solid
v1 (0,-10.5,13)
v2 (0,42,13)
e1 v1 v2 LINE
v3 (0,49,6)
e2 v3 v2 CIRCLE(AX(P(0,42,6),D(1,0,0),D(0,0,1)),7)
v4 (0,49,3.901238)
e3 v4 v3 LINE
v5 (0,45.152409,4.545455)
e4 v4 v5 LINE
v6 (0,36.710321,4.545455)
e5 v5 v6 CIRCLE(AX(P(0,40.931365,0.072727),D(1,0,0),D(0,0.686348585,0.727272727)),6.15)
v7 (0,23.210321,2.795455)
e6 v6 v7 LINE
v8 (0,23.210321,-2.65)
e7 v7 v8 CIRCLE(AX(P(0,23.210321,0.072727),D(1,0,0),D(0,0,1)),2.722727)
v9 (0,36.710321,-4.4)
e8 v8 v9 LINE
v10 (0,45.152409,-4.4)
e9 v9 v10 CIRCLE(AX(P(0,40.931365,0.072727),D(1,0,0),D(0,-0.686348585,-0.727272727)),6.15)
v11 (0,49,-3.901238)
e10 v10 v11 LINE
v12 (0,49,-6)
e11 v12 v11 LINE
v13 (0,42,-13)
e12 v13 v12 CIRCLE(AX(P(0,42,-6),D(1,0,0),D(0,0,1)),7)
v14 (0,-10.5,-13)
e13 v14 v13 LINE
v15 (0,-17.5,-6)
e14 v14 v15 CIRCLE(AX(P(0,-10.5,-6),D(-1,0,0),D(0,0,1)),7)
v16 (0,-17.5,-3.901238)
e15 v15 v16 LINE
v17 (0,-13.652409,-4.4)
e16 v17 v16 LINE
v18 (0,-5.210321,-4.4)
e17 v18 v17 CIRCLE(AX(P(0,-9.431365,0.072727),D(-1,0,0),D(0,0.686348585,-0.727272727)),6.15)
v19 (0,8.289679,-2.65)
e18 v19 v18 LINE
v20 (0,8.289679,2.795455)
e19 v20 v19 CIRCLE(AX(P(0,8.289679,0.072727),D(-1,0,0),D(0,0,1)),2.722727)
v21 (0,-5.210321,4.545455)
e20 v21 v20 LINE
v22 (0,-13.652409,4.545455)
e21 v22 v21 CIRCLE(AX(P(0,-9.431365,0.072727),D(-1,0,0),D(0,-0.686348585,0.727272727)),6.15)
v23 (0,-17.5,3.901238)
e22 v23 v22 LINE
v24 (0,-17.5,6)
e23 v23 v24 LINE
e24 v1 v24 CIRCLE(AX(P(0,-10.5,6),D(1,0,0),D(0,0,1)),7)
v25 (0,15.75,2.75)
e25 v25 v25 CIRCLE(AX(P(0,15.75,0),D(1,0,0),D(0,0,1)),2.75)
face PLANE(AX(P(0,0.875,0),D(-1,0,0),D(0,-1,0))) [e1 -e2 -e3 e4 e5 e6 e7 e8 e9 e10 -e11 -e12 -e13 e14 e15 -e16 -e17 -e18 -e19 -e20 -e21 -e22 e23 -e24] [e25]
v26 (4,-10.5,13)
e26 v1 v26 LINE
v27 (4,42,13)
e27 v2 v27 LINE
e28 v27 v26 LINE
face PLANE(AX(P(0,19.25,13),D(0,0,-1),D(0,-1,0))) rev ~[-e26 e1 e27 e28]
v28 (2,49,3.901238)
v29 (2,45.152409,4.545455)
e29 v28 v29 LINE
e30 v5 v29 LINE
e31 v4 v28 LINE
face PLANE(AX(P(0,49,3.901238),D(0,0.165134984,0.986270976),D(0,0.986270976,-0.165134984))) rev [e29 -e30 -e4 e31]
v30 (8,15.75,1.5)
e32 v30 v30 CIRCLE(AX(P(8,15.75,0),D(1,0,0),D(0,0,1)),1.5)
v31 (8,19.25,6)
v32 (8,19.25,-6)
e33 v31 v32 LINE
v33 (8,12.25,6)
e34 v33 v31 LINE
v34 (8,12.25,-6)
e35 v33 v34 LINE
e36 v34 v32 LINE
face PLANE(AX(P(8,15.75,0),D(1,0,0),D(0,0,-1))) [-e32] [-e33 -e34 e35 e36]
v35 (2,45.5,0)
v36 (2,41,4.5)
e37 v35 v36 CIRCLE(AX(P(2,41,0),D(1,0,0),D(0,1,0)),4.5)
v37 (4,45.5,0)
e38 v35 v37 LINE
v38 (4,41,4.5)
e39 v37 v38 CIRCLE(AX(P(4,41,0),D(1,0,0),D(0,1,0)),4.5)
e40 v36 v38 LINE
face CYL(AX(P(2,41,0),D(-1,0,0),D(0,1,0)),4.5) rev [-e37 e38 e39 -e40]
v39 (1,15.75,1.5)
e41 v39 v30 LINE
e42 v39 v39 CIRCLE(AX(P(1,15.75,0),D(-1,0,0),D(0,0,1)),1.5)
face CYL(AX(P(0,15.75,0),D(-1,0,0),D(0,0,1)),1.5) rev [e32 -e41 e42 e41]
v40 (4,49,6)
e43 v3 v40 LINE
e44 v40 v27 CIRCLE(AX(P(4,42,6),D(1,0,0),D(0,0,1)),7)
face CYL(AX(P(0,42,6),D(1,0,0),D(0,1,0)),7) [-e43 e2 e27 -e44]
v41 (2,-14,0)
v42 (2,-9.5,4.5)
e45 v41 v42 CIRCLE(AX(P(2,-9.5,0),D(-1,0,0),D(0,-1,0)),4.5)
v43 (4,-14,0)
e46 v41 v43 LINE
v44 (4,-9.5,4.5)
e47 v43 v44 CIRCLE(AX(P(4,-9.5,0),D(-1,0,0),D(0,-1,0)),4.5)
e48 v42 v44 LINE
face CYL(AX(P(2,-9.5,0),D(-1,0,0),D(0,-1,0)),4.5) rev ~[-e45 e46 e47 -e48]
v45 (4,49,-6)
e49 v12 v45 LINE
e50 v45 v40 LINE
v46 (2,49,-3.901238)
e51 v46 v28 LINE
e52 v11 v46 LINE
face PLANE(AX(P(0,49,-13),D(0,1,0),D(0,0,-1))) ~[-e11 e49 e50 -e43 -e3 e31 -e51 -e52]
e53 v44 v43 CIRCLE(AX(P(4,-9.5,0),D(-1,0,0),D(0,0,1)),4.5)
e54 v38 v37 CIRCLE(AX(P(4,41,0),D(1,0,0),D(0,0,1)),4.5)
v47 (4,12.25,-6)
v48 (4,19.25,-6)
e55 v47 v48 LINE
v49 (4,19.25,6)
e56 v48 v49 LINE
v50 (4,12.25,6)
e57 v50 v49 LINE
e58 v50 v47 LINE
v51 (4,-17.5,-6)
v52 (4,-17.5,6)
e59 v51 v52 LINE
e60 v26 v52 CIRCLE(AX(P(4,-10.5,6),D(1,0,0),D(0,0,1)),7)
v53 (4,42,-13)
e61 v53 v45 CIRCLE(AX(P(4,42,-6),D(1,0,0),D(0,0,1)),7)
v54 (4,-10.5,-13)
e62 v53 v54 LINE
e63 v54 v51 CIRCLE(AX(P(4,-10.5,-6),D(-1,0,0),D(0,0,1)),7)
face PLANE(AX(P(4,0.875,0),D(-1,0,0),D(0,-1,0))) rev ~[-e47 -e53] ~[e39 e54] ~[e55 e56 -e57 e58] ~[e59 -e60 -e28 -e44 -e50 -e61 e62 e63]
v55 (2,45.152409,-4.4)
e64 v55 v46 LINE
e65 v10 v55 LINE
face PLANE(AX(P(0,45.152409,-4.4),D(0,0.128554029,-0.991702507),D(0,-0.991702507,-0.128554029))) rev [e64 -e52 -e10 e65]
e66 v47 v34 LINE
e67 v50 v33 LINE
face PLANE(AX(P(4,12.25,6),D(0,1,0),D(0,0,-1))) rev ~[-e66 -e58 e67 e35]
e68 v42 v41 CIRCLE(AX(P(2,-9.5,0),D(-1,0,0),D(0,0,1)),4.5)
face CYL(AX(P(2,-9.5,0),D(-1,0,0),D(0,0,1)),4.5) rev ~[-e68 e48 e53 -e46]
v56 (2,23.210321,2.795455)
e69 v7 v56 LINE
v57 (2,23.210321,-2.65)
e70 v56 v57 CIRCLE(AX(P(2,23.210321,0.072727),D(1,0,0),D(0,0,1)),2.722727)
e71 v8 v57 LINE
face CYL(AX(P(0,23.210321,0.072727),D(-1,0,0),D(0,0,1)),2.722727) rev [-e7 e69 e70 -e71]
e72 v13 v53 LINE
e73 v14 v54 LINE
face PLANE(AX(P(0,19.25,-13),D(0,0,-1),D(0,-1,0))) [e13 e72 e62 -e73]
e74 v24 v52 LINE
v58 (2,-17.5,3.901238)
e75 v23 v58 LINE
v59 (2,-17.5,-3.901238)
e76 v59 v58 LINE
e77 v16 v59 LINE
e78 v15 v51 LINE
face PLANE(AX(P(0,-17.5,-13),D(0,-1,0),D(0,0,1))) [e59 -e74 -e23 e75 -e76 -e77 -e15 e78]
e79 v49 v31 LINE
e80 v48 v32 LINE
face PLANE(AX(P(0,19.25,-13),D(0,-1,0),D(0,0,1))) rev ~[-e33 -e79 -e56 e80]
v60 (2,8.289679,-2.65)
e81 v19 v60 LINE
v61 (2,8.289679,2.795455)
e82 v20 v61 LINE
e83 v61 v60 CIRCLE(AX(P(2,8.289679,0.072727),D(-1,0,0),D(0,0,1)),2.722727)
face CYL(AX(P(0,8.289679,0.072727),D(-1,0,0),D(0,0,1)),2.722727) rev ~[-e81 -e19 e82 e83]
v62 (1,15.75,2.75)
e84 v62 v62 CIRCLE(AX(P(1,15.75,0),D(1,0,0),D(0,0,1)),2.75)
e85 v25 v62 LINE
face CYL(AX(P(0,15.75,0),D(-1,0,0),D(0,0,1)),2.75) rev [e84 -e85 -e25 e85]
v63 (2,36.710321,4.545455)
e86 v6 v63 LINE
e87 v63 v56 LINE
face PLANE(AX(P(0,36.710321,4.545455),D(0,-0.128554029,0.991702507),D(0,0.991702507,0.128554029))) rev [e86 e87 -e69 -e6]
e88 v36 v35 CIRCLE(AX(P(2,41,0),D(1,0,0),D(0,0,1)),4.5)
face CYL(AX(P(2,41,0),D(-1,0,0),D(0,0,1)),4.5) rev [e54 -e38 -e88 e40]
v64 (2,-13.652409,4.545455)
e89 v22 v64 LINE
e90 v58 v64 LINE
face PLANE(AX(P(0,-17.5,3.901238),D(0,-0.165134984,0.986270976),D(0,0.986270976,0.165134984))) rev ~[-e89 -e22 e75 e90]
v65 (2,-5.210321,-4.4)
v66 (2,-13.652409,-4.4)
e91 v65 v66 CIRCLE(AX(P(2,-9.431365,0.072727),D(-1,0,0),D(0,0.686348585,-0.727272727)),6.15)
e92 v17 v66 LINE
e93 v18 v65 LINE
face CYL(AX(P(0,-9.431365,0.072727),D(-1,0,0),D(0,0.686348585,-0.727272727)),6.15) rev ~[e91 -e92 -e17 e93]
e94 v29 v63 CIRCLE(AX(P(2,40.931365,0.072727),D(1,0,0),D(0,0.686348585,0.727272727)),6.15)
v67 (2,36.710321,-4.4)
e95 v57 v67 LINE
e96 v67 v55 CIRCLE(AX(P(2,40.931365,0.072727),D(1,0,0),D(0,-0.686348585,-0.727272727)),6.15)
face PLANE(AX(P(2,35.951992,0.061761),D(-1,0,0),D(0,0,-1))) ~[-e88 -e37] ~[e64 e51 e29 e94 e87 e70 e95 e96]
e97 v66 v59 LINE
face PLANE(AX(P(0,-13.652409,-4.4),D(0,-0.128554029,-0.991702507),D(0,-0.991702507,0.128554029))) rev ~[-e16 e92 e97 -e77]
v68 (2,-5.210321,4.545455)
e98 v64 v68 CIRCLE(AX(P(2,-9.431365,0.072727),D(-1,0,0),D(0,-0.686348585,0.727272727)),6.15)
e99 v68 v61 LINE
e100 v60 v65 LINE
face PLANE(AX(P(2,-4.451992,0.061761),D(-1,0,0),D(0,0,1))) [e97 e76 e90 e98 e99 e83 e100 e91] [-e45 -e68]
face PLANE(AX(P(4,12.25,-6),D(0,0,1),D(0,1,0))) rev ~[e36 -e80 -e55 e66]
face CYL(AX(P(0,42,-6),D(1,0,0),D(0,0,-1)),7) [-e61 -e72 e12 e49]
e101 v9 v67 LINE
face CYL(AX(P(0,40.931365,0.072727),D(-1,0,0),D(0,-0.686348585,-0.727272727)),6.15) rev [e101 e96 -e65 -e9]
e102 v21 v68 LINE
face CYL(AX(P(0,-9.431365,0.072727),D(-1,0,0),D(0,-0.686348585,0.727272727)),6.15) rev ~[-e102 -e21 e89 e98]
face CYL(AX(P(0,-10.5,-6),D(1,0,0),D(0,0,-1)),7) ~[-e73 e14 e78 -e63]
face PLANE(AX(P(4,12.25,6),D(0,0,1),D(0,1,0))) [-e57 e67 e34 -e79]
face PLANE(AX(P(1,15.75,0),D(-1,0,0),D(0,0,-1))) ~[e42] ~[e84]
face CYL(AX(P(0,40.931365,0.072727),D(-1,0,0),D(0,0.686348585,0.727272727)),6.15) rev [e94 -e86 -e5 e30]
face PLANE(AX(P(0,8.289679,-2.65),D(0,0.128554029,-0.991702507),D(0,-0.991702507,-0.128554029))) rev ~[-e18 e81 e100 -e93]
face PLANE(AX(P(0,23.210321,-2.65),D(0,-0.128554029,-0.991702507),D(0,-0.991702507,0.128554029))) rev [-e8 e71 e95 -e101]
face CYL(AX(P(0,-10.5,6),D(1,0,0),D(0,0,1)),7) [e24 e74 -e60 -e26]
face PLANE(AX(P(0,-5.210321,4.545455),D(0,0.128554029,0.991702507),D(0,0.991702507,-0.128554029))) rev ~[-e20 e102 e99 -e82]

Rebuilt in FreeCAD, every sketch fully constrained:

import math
import FreeCAD as App
import Part
import Sketcher

V = App.Vector
Q = App.Units.Quantity


def edges_at(feature, points):
    """Names of the edges that pass closest to the given points."""
    edges = feature.Shape.Edges
    near = lambda p: min(range(len(edges)), key=lambda i: edges[i].distToShape(Part.Vertex(*p))[0])
    return sorted({f"Edge{near(p) + 1}" for p in points})

doc = App.newDocument("Part")
body = doc.addObject("PartDesign::Body", "Body")

# Sketch on YZ plane
sketch1 = body.newObject("Sketcher::SketchObject", "Sketch")
sketch1.AttachmentSupport = (doc.getObject("YZ_Plane"), [""])
sketch1.MapMode = "FlatFace"
sketch1.addGeometry([
    Part.LineSegment(V(19, 13, 0), V(19, -13, 0)),
    Part.LineSegment(V(19, -13, 0), V(-18, -13, 0)),
    Part.LineSegment(V(-18, -13, 0), V(-18, 13, 0)),
    Part.LineSegment(V(-18, 13, 0), V(19, 13, 0)),
], False)
sketch1.addConstraint([
    Sketcher.Constraint("Coincident", 0, 2, 1, 1),
    Sketcher.Constraint("Coincident", 1, 2, 2, 1),
    Sketcher.Constraint("Coincident", 2, 2, 3, 1),
    Sketcher.Constraint("Coincident", 3, 2, 0, 1),
    Sketcher.Constraint("Vertical", 0),
    Sketcher.Constraint("Horizontal", 1),
    Sketcher.Constraint("Vertical", 2),
    Sketcher.Constraint("Horizontal", 3),
    Sketcher.Constraint("DistanceY", 0, 2, 0, 1, Q("26 mm")),
    Sketcher.Constraint("DistanceY", 0, 2, -1, 1, Q("13 mm")),
    Sketcher.Constraint("DistanceX", 1, 2, 1, 1, Q("36.75 mm")),
    Sketcher.Constraint("DistanceX", 1, 2, -1, 1, Q("17.5 mm")),
])
pad1 = body.newObject("PartDesign::Pad", "Pad")
pad1.Profile = sketch1
pad1.Length = 4

# Sketch on YZ plane
sketch2 = body.newObject("Sketcher::SketchObject", "Sketch001")
sketch2.AttachmentSupport = (doc.getObject("YZ_Plane"), [""])
sketch2.MapMode = "FlatFace"
sketch2.addGeometry([
    Part.LineSegment(V(-17.5, 3.9, 0), V(-13.7, 4.5, 0)),  # 0
    Part.ArcOfCircle(Part.Circle(V(-9.4, 0.1, 0), V(0, 0, 1), 6.1), math.radians(47), math.radians(133)),  # 1
    Part.LineSegment(V(-5.2, 4.5, 0), V(8.3, 2.8, 0)),  # 2
    Part.ArcOfCircle(Part.Circle(V(8.3, 0.1, 0), V(0, 0, 1), 2.7), math.radians(-90), math.radians(90)),  # 3
    Part.LineSegment(V(8.3, -2.6, 0), V(-5.2, -4.4, 0)),  # 4
    Part.ArcOfCircle(Part.Circle(V(-9.4, 0.1, 0), V(0, 0, 1), 6.2), math.radians(-133), math.radians(-47)),  # 5
    Part.LineSegment(V(-13.7, -4.4, 0), V(-17.5, -3.9, 0)),  # 6
    Part.LineSegment(V(-17.5, -3.9, 0), V(-17.5, 3.9, 0)),  # 7
], False)
sketch2.addConstraint([
    Sketcher.Constraint("Coincident", 0, 2, 1, 2),
    Sketcher.Constraint("Coincident", 1, 1, 2, 1),
    Sketcher.Constraint("Coincident", 2, 2, 3, 2),
    Sketcher.Constraint("Coincident", 3, 1, 4, 1),
    Sketcher.Constraint("Coincident", 4, 2, 5, 2),
    Sketcher.Constraint("Coincident", 5, 1, 6, 1),
    Sketcher.Constraint("Coincident", 6, 2, 7, 1),
    Sketcher.Constraint("Coincident", 7, 2, 0, 1),
    Sketcher.Constraint("Vertical", 7),
    Sketcher.Constraint("Coincident", 5, 3, 1, 3),
    Sketcher.Constraint("Equal", 1, 5),
    Sketcher.Constraint("Parallel", 2, 6),
    Sketcher.Constraint("Horizontal", 1, 3, 3, 3),
    Sketcher.Constraint("Horizontal", 0, 2, 1, 1),
    Sketcher.Constraint("Horizontal", 4, 2, 5, 1),
    Sketcher.Constraint("Vertical", 3, 3, 2, 2),
    Sketcher.Constraint("Vertical", 2, 2, 3, 1),
    Sketcher.Constraint("Vertical", 1, 1, 4, 2),
    Sketcher.Constraint("Radius", 1, Q("6.15 mm")),
    Sketcher.Constraint("DistanceY", 4, 2, -1, 1, Q("4.4 mm")),
    Sketcher.Constraint("DistanceX", 6, 2, -1, 1, Q("17.5 mm")),
    Sketcher.Constraint("DistanceX", 1, 1, 3, 3, Q("13.5 mm")),
    Sketcher.Constraint("DistanceY", 3, 1, -1, 1, Q("2.65 mm")),
    Sketcher.Constraint("Radius", 3, Q("2.722727 mm")),
    Sketcher.Constraint("Distance", 0, Q("3.90115 mm")),
    Sketcher.Constraint("DistanceY", 7, 1, 7, 2, Q("7.802476 mm")),
])
pocket1 = body.newObject("PartDesign::Pocket", "Pocket")
pocket1.Profile = sketch2
pocket1.Length = 2
pocket1.Reversed = True
doc.recompute()

fillet = body.newObject("PartDesign::Fillet", "Fillet")
fillet.Base = (pocket1, edges_at(pocket1, [(2, -17.5, 13), (2, -17.5, -13)]))
fillet.Radius = 7

# Sketch on YZ plane
sketch3 = body.newObject("Sketcher::SketchObject", "Sketch002")
sketch3.AttachmentSupport = (doc.getObject("YZ_Plane"), [""])
sketch3.MapMode = "FlatFace"
sketch3.AttachmentOffset = App.Placement(V(0, 0, 2), App.Rotation())
sketch3.addGeometry([
    Part.ArcOfCircle(Part.Circle(V(-9.5, 0, 0), V(0, 0, 1), 4.5), math.radians(180), math.radians(450)),
    Part.ArcOfCircle(Part.Circle(V(-9.5, 0, 0), V(0, 0, 1), 4.5), math.radians(90), math.radians(180)),
], False)
sketch3.addConstraint([
    Sketcher.Constraint("Tangent", 0, 1, 1, 2),
    Sketcher.Constraint("Coincident", 1, 1, 0, 2),
    Sketcher.Constraint("PointOnObject", 0, 3, -1),
    Sketcher.Constraint("PointOnObject", 0, 1, -1),
    Sketcher.Constraint("Vertical", 0, 3, 1, 1),
    Sketcher.Constraint("Radius", 0, Q("4.5 mm")),
    Sketcher.Constraint("DistanceX", 0, 1, -1, 1, Q("14 mm")),
])
pocket2 = body.newObject("PartDesign::Pocket", "Pocket001")
pocket2.Profile = sketch3
pocket2.Length = 2
pocket2.Reversed = True

# Sketch on YZ plane
sketch4 = body.newObject("Sketcher::SketchObject", "Sketch003")
sketch4.AttachmentSupport = (doc.getObject("YZ_Plane"), [""])
sketch4.MapMode = "FlatFace"
sketch4.AttachmentOffset = App.Placement(V(0, 0, 4), App.Rotation())
sketch4.addGeometry([
    Part.LineSegment(V(19, 6, 0), V(12, 6, 0)),
    Part.LineSegment(V(12, 6, 0), V(12, -6, 0)),
    Part.LineSegment(V(12, -6, 0), V(19, -6, 0)),
    Part.LineSegment(V(19, -6, 0), V(19, 6, 0)),
], False)
sketch4.addConstraint([
    Sketcher.Constraint("Coincident", 0, 2, 1, 1),
    Sketcher.Constraint("Coincident", 1, 2, 2, 1),
    Sketcher.Constraint("Coincident", 2, 2, 3, 1),
    Sketcher.Constraint("Coincident", 3, 2, 0, 1),
    Sketcher.Constraint("Horizontal", 0),
    Sketcher.Constraint("Vertical", 1),
    Sketcher.Constraint("Horizontal", 2),
    Sketcher.Constraint("Vertical", 3),
    Sketcher.Constraint("DistanceX", 0, 2, 0, 1, Q("7 mm")),
    Sketcher.Constraint("DistanceY", 1, 2, 1, 1, Q("12 mm")),
    Sketcher.Constraint("DistanceY", -1, 1, 0, 2, Q("6 mm")),
    Sketcher.Constraint("DistanceX", -1, 1, 0, 2, Q("12.25 mm")),
])
pad2 = body.newObject("PartDesign::Pad", "Pad001")
pad2.Profile = sketch4
pad2.Length = 4

# Sketch on YZ plane
sketch5 = body.newObject("Sketcher::SketchObject", "Sketch004")
sketch5.AttachmentSupport = (doc.getObject("YZ_Plane"), [""])
sketch5.MapMode = "FlatFace"
sketch5.addGeometry(Part.Circle(V(15.8, 0, 0), V(0, 0, 1), 1.5), False)
sketch5.addConstraint([
    Sketcher.Constraint("PointOnObject", 0, 3, -1),
    Sketcher.Constraint("Diameter", 0, Q("3 mm")),
    Sketcher.Constraint("DistanceX", -1, 1, 0, 3, Q("15.75 mm")),
])
pocket3 = body.newObject("PartDesign::Pocket", "Pocket002")
pocket3.Profile = sketch5
pocket3.Length = 8
pocket3.Reversed = True

# Sketch on YZ plane
sketch6 = body.newObject("Sketcher::SketchObject", "Sketch005")
sketch6.AttachmentSupport = (doc.getObject("YZ_Plane"), [""])
sketch6.MapMode = "FlatFace"
sketch6.addGeometry(Part.Circle(V(15.8, 0, 0), V(0, 0, 1), 2.8), False)
sketch6.addConstraint([
    Sketcher.Constraint("PointOnObject", 0, 3, -1),
    Sketcher.Constraint("Diameter", 0, Q("5.5 mm")),
    Sketcher.Constraint("DistanceX", -1, 1, 0, 3, Q("15.75 mm")),
])
pocket4 = body.newObject("PartDesign::Pocket", "Pocket003")
pocket4.Profile = sketch6
pocket4.Length = 1
pocket4.Reversed = True
doc.recompute()

datumplane = body.newObject("PartDesign::Plane", "DatumPlane")
datumplane.AttachmentSupport = (doc.getObject("XZ_Plane"), [""])
datumplane.MapMode = "FlatFace"
datumplane.AttachmentOffset = App.Placement(V(0, 0, -15.75), App.Rotation())
mirrored = body.newObject("PartDesign::Mirrored", "Mirrored")
mirrored.Originals = [pad1, pocket1, pocket2, pad2, pocket3, pocket4]
mirrored.MirrorPlane = (datumplane, [""])
body.Tip = mirrored
doc.recompute()

fillet2 = body.newObject("PartDesign::Fillet", "Fillet001")
fillet2.Base = (mirrored, edges_at(mirrored, [(2, 49, 13), (2, 49, -13)]))
fillet2.Radius = 7

doc.recompute()
